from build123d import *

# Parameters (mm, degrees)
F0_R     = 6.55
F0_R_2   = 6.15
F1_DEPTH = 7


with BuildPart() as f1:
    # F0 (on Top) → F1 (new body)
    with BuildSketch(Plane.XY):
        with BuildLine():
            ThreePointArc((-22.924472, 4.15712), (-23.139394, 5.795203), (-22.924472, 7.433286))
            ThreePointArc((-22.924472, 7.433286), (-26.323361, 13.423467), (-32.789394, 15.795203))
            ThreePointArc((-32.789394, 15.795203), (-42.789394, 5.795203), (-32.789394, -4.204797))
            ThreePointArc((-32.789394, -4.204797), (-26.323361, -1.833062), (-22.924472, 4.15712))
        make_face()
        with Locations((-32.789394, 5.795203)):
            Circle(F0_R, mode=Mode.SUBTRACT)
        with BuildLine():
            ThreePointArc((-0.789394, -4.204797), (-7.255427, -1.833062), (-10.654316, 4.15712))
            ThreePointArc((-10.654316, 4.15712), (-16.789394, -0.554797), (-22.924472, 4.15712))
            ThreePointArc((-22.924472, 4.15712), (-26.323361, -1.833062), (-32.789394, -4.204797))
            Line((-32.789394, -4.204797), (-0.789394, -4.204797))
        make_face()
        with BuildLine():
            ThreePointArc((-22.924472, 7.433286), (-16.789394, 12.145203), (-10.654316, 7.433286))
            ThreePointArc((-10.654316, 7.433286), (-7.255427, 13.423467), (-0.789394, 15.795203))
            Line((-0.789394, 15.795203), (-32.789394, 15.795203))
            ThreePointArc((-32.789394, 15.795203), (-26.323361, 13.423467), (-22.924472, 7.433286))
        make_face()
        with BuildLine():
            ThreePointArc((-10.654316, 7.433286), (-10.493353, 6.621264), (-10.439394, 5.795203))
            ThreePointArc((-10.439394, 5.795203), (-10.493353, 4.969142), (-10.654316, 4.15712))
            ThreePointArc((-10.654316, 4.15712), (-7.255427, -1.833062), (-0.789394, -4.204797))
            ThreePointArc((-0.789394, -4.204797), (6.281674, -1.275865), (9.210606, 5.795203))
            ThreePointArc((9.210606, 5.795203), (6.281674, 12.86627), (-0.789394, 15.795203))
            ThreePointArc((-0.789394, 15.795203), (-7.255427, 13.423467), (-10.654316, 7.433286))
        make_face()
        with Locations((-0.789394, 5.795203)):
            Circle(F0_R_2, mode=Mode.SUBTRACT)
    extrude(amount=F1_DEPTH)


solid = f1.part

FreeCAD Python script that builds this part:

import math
import FreeCAD as App
import Part
import Sketcher

V = App.Vector
Q = App.Units.Quantity

doc = App.newDocument("Part")
body = doc.addObject("PartDesign::Body", "Body")

sketch1 = doc.addObject("Sketcher::SketchObject", "Sketch")
body.addObject(sketch1)
sketch1.AttachmentSupport = (doc.XY_Plane, [""])
sketch1.MapMode = "FlatFace"
sketch1.addGeometry([
    Part.LineSegment(V(-0.8, 15.8, 0), V(-32.8, 15.8, 0)),
    Part.ArcOfCircle(Part.Circle(V(-32.8, 5.8, 0), V(0, 0, 1), 10), math.radians(90), math.radians(270)),
    Part.LineSegment(V(-32.8, -4.2, 0), V(-0.8, -4.2, 0)),
    Part.ArcOfCircle(Part.Circle(V(-0.8, 5.8, 0), V(0, 0, 1), 10), math.radians(-90), math.radians(0)),
    Part.ArcOfCircle(Part.Circle(V(-0.8, 5.8, 0), V(0, 0, 1), 10), math.radians(0), math.radians(90)),
    Part.Circle(V(-32.8, 5.8, 0), V(0, 0, 1), 6.5),
    Part.ArcOfCircle(Part.Circle(V(-16.8, 5.8, 0), V(0, 0, 1), 6.3), math.radians(165), math.radians(195)),
    Part.ArcOfCircle(Part.Circle(V(-16.8, 5.8, 0), V(0, 0, 1), 6.3), math.radians(15), math.radians(165)),
    Part.ArcOfCircle(Part.Circle(V(-16.8, 5.8, 0), V(0, 0, 1), 6.3), math.radians(0), math.radians(14.95)),
    Part.ArcOfCircle(Part.Circle(V(-16.8, 5.8, 0), V(0, 0, 1), 6.3), math.radians(-14.95), math.radians(0)),
    Part.ArcOfCircle(Part.Circle(V(-16.8, 5.8, 0), V(0, 0, 1), 6.3), math.radians(-165), math.radians(-15)),
    Part.Circle(V(-0.8, 5.8, 0), V(0, 0, 1), 6.2),
], False)
sketch1.addConstraint([
    Sketcher.Constraint("Tangent", 0, 2, 1, 1),
    Sketcher.Constraint("Tangent", 1, 2, 2, 1),
    Sketcher.Constraint("Tangent", 2, 2, 3, 1),
    Sketcher.Constraint("Tangent", 3, 2, 4, 1),
    Sketcher.Constraint("Tangent", 4, 2, 0, 1),
    Sketcher.Constraint("Tangent", 6, 1, 7, 2),
    Sketcher.Constraint("Coincident", 7, 1, 8, 2),
    Sketcher.Constraint("Coincident", 8, 1, 9, 2),
    Sketcher.Constraint("Coincident", 9, 1, 10, 2),
    Sketcher.Constraint("Tangent", 10, 1, 6, 2),
    Sketcher.Constraint("Horizontal", 0),
    Sketcher.Constraint("Horizontal", 2),
    Sketcher.Constraint("Coincident", 5, 3, 1, 3),
    Sketcher.Constraint("Coincident", 11, 3, 3, 3),
    Sketcher.Constraint("Equal", 1, 3),
    Sketcher.Constraint("Equal", 8, 9),
    Sketcher.Constraint("Equal", 7, 10),
    Sketcher.Constraint("Horizontal", 5, 3, 6, 3),
    Sketcher.Constraint("Horizontal", 5, 3, 7, 3),
    Sketcher.Constraint("Horizontal", 11, 3, 3, 2),
    Sketcher.Constraint("Horizontal", 6, 1, 7, 1),
    Sketcher.Constraint("Horizontal", 3, 2, 8, 1),
    Sketcher.Constraint("Horizontal", 9, 1, 10, 1),
    Sketcher.Constraint("Vertical", 7, 1, 9, 1),
    Sketcher.Constraint("Radius", 1, Q("10 mm")),
    Sketcher.Constraint("Diameter", 5, Q("13.1 mm")),
    Sketcher.Constraint("Diameter", 11, Q("12.3 mm")),
    Sketcher.Constraint("DistanceX", 0, 2, 0, 1, Q("32 mm")),
    Sketcher.Constraint("Radius", 7, Q("6.35 mm")),
    Sketcher.Constraint("DistanceX", 7, 3, 4, 3, Q("15.999999 mm")),
    Sketcher.Constraint("DistanceX", 7, 3, 8, 1, Q("6.35 mm")),
    Sketcher.Constraint("Radius", 8, Q("6.349908 mm")),
    Sketcher.Constraint("DistanceY", -1, 1, 4, 3, Q("5.795202 mm")),
    Sketcher.Constraint("DistanceX", 6, 3, -1, 1, Q("16.789399 mm")),
    Sketcher.Constraint("DistanceY", -1, 1, 9, 1, Q("4.15712 mm")),
])
pad1 = doc.addObject("PartDesign::Pad", "Pad")
body.addObject(pad1)
pad1.Profile = sketch1
pad1.Length = 7

doc.recompute()
